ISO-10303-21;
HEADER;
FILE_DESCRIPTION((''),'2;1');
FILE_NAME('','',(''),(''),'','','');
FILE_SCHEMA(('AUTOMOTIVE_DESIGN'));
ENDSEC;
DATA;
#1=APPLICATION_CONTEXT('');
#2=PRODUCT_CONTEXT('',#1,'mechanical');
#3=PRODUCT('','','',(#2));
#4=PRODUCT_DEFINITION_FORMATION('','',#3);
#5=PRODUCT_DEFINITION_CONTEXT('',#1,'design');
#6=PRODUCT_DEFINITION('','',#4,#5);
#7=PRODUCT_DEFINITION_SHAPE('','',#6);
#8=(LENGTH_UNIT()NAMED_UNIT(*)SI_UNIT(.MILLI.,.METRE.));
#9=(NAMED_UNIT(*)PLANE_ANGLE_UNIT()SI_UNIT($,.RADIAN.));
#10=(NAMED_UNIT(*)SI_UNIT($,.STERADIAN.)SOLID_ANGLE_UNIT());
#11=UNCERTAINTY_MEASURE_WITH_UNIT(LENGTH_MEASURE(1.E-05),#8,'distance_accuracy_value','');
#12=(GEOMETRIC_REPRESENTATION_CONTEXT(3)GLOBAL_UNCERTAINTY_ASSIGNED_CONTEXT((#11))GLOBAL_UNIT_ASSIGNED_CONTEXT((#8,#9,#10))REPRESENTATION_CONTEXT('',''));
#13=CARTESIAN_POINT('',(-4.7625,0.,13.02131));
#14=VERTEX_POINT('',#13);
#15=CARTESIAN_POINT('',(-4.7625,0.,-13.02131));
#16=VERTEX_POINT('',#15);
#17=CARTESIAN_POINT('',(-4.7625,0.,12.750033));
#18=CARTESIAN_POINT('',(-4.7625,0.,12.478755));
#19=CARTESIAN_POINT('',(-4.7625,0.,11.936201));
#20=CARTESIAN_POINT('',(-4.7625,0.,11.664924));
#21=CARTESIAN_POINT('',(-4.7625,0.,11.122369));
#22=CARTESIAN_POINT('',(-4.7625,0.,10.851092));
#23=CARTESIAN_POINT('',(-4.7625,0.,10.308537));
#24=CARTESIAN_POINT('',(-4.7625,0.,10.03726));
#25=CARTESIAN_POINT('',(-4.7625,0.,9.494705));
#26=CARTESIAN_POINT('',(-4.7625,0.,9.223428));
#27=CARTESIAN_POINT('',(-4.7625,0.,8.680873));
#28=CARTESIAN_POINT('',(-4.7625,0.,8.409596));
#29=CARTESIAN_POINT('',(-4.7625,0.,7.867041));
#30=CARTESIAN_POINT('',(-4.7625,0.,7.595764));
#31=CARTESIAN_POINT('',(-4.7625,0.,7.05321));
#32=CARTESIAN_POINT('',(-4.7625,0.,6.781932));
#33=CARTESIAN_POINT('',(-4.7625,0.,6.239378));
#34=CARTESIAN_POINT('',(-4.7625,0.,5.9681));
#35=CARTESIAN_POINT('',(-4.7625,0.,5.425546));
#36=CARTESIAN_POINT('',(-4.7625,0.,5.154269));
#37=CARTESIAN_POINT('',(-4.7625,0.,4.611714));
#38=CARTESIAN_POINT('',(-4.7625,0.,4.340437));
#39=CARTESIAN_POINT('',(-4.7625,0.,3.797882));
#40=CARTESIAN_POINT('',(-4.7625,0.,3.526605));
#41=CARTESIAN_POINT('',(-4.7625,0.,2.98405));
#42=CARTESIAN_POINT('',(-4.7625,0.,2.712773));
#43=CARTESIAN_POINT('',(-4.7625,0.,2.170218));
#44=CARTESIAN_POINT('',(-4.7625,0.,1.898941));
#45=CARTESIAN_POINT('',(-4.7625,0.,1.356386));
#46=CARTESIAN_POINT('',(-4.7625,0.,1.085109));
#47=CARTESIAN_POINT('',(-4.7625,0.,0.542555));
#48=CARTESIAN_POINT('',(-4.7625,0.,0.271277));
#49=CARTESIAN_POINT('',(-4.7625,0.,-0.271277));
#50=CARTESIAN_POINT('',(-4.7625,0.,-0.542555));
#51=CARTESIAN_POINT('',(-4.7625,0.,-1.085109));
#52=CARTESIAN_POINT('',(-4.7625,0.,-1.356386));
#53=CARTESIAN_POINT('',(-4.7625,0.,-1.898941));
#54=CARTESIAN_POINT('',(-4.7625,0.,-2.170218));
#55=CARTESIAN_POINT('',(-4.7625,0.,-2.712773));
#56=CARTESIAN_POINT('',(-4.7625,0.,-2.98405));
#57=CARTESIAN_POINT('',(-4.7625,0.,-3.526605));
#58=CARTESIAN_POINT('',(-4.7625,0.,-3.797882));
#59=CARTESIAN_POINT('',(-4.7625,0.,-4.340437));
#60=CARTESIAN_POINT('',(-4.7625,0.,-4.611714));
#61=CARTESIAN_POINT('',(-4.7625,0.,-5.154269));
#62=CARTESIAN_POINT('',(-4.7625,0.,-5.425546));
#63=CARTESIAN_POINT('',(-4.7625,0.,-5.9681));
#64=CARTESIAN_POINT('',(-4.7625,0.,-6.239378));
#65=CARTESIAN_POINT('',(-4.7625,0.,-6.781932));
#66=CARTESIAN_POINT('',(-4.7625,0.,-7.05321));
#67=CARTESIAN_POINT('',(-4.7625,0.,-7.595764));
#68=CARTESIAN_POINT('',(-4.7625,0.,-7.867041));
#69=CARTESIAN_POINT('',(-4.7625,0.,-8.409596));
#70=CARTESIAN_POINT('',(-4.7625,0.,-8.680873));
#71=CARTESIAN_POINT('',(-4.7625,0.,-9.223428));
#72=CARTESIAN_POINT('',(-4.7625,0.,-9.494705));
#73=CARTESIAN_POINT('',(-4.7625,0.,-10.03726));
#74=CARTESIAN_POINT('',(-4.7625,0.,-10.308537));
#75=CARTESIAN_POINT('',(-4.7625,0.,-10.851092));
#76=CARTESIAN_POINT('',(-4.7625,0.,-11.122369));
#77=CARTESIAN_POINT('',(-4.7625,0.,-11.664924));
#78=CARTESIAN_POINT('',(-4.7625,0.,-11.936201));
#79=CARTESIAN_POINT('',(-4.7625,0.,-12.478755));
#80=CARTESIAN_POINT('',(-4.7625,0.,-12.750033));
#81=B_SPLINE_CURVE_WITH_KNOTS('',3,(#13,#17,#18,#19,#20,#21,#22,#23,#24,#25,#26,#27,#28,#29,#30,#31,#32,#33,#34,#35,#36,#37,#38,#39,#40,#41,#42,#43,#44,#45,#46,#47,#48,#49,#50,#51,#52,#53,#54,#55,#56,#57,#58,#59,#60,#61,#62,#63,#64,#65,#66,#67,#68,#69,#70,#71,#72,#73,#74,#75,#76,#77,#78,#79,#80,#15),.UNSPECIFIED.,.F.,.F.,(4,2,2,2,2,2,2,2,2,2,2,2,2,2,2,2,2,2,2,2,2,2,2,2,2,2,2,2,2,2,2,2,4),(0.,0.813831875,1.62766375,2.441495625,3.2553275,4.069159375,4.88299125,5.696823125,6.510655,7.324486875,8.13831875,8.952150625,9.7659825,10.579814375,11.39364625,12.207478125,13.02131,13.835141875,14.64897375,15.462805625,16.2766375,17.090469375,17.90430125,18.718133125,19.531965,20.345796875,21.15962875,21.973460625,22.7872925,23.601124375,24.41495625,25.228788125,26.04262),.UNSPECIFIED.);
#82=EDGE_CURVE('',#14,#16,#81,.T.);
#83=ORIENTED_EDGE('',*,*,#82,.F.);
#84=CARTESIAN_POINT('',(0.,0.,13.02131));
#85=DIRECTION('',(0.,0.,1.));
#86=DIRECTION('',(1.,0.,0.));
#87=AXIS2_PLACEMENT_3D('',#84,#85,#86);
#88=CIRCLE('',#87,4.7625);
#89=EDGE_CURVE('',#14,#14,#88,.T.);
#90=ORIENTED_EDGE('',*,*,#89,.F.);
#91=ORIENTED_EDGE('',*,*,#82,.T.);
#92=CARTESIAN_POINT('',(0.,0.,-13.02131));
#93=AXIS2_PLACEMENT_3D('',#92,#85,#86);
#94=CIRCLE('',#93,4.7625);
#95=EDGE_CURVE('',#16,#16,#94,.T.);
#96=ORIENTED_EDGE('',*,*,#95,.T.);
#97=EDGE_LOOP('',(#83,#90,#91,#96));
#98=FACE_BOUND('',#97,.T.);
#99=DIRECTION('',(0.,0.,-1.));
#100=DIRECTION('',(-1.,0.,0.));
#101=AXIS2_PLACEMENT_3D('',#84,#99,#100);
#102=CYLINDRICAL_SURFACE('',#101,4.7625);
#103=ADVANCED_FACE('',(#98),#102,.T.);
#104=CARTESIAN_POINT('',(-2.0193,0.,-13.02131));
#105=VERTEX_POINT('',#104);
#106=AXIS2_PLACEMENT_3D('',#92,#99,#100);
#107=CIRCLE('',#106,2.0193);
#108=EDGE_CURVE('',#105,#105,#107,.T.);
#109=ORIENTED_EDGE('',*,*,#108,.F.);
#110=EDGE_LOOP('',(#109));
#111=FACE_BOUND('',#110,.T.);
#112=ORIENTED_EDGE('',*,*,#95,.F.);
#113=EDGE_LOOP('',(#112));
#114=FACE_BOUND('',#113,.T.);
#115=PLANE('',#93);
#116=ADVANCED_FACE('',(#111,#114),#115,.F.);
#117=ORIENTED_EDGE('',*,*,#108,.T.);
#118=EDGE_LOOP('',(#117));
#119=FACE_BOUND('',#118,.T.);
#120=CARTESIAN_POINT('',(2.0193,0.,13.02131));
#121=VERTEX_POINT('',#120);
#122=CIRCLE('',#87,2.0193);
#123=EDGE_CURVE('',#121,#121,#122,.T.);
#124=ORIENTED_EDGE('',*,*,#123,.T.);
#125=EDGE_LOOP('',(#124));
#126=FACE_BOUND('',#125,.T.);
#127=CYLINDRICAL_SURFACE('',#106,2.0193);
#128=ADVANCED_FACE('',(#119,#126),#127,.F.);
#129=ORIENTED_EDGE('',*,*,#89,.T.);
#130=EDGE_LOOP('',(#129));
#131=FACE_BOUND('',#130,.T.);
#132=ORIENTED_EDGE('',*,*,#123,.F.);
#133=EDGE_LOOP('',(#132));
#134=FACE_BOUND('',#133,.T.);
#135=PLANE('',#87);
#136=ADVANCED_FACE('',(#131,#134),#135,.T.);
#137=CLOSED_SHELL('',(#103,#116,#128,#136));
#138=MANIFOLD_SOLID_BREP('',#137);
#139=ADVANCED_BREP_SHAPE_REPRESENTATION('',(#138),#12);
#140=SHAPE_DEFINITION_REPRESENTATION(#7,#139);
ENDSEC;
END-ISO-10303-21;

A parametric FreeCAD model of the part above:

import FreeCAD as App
import Part
import Sketcher
from FreeCAD import Vector
Q = App.Units.Quantity

doc = App.newDocument("Part")
body = doc.addObject("PartDesign::Body", "Body")

sketch1 = body.newObject("Sketcher::SketchObject", "Sketch")
sketch1.AttachmentSupport = (doc.getObject("XY_Plane"), [""])
sketch1.MapMode = "FlatFace"
sketch1.addGeometry(Part.Circle(Vector(0, 0, 0), Vector(0, 0, 1), 4.8), False)
sketch1.addConstraint(Sketcher.Constraint("Coincident", 0, 3, -1, 1))
sketch1.addConstraint(Sketcher.Constraint("Diameter", 0, Q("0.375 in")))
pad1 = body.newObject("PartDesign::Pad", "Pad")
pad1.Profile = sketch1
pad1.Length = Q("1.0253 in")
pad1.Midplane = True

sketch2 = body.newObject("Sketcher::SketchObject", "Sketch001")
sketch2.AttachmentSupport = (doc.getObject("XY_Plane"), [""])
sketch2.MapMode = "FlatFace"
sketch2.AttachmentOffset = App.Placement(Vector(0, 0, 13.02131), App.Rotation())
sketch2.addGeometry(Part.Circle(Vector(0, 0, 0), Vector(0, 0, 1), 2), False)
sketch2.addConstraint(Sketcher.Constraint("Coincident", 0, 3, -1, 1))
sketch2.addConstraint(Sketcher.Constraint("Diameter", 0, Q("0.159 in")))
doc.recompute()
hole = body.newObject("PartDesign::Hole", "Hole")
hole.Profile = sketch2
hole.ThreadType = "None"
hole.Diameter = Q("0.159 in")
hole.DepthType = "Dimension"
hole.Depth = Q("0.5936 in")
hole.DrillPoint = "Angled"
hole.DrillPointAngle = 118

sketch3 = body.newObject("Sketcher::SketchObject", "Sketch002")
sketch3.AttachmentSupport = (doc.getObject("XY_Plane"), [""])
sketch3.MapMode = "FlatFace"
sketch3.AttachmentOffset = App.Placement(Vector(0, 0, -13.02131), App.Rotation())
sketch3.addGeometry(Part.Circle(Vector(0, 0, 0), Vector(0, 0, 1), 2), False)
sketch3.addConstraint(Sketcher.Constraint("Coincident", 0, 3, -1, 1))
sketch3.addConstraint(Sketcher.Constraint("Diameter", 0, Q("0.159 in")))
doc.recompute()
hole2 = body.newObject("PartDesign::Hole", "Hole001")
hole2.Profile = sketch3
hole2.ThreadType = "None"
hole2.Diameter = Q("0.159 in")
hole2.DepthType = "Dimension"
hole2.Depth = Q("0.5936 in")
hole2.DrillPoint = "Angled"
hole2.DrillPointAngle = 118
hole2.Reversed = True

doc.recompute()
